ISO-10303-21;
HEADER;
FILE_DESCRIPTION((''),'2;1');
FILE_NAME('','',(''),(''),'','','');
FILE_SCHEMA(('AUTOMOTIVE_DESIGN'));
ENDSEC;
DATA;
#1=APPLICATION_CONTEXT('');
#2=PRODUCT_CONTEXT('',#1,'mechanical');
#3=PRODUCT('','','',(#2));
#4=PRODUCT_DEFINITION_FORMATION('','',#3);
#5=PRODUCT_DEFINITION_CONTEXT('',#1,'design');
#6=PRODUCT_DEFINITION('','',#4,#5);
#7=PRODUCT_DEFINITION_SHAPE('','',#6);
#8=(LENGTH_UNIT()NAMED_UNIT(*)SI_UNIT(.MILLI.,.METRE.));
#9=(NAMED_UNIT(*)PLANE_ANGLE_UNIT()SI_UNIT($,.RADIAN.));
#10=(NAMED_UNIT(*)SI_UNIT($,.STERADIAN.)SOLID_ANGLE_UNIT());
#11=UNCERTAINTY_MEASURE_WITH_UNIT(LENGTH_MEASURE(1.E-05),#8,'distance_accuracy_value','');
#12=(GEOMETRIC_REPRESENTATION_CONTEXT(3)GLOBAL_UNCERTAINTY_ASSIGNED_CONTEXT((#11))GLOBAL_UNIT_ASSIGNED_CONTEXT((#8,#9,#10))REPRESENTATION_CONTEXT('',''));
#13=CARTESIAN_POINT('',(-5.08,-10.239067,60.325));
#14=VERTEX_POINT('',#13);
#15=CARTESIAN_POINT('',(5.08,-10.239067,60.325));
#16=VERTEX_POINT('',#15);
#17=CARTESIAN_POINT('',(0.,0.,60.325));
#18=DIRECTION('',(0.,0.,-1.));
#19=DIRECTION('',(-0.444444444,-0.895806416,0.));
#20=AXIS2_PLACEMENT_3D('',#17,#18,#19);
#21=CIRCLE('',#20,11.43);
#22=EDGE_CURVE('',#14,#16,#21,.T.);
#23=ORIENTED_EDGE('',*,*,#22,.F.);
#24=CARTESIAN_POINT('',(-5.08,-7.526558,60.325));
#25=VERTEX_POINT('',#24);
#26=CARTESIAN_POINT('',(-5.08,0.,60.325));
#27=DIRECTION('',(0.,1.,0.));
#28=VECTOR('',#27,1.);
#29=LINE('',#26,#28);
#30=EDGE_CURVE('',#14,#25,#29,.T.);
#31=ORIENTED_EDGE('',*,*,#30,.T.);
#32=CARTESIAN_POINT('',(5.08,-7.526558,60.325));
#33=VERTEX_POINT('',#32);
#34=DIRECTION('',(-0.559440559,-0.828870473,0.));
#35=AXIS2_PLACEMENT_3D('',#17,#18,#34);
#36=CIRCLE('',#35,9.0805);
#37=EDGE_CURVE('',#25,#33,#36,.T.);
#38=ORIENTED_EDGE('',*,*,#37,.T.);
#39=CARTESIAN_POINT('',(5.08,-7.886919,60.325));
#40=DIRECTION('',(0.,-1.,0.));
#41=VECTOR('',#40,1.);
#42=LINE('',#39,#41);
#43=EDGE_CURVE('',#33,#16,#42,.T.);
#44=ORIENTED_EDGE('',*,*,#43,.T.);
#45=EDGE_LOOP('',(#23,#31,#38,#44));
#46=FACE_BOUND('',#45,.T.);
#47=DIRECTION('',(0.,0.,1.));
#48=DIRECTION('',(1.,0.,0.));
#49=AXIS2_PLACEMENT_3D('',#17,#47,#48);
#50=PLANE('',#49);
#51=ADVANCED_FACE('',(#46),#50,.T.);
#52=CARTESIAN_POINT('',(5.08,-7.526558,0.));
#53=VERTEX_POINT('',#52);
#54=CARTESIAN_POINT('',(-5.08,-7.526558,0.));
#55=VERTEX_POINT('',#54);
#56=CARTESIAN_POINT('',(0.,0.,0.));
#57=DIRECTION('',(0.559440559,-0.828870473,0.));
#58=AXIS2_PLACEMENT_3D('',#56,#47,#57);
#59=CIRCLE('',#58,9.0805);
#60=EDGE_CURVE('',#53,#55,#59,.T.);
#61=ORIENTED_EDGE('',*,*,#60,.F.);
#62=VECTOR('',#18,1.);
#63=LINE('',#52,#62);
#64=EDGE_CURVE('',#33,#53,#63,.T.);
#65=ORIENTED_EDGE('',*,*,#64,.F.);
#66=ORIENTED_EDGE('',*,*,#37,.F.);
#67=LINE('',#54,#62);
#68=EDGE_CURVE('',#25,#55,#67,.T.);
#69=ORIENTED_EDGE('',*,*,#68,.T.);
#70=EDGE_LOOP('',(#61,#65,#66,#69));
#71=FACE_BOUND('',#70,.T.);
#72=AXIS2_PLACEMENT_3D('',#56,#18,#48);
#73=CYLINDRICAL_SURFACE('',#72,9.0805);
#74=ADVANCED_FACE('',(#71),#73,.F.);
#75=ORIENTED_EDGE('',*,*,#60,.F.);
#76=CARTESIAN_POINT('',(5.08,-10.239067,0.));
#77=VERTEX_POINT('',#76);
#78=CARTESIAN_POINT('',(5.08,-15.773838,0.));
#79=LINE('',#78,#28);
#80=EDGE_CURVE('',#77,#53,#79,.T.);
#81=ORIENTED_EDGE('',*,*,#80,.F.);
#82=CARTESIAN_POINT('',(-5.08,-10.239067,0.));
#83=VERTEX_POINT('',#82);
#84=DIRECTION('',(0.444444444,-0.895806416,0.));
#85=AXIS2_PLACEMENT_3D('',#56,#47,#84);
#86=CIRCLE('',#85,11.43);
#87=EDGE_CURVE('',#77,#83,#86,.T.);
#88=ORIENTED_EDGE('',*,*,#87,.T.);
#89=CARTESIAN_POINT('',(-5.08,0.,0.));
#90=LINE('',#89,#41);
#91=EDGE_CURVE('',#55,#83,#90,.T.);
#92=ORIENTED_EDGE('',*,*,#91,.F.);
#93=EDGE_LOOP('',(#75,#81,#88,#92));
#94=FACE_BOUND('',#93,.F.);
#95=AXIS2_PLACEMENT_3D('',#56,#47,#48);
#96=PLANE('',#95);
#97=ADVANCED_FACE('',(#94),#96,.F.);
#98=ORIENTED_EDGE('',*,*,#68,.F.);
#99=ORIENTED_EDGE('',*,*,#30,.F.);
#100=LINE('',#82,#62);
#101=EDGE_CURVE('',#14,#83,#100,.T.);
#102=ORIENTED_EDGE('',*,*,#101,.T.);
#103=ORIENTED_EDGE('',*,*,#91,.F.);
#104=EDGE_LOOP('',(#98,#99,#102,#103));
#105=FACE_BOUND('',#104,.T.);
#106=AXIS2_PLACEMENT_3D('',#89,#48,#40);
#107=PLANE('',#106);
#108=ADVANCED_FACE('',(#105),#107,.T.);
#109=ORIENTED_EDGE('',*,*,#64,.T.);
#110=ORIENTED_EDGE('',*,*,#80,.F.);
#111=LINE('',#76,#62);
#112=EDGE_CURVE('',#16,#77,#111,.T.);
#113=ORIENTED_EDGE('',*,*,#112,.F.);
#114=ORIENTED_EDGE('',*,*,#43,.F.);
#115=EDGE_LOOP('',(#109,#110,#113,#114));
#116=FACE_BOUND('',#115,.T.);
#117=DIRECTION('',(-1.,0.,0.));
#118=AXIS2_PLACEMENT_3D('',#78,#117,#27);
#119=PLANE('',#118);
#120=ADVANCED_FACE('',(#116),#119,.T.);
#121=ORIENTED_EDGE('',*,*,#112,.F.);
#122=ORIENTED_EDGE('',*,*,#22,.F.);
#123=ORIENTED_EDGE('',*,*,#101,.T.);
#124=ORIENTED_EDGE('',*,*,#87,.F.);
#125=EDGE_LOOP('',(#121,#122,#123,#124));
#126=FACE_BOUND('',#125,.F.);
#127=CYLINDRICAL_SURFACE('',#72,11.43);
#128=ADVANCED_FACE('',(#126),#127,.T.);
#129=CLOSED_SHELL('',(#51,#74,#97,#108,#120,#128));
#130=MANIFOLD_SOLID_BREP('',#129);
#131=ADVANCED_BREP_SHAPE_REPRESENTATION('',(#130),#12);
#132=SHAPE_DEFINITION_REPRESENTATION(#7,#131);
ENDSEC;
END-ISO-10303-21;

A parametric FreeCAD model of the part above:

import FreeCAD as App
import Part
import Sketcher
from FreeCAD import Vector
Q = App.Units.Quantity


def add_polygon(sketch, points):
    """Adds a closed chain of lines whose ends are joined by coincident constraints."""
    first, n = sketch.GeometryCount, len(points)
    for a, b in zip(points, points[1:] + points[:1]):
        sketch.addGeometry(Part.LineSegment(App.Vector(*a, 0), App.Vector(*b, 0)), False)
    for i in range(n):
        sketch.addConstraint(Sketcher.Constraint("Coincident", first + i, 2, first + (i + 1) % n, 1))

doc = App.newDocument("Part")
body = doc.addObject("PartDesign::Body", "Body")

sketch1 = doc.addObject("Sketcher::SketchObject", "Sketch")
body.addObject(sketch1)
sketch1.AttachmentSupport = (doc.XY_Plane, [""])
sketch1.MapMode = "FlatFace"
sketch1.addGeometry(Part.Circle(Vector(0, 0, 0), Vector(0, 0, 1), 11.43), False)
sketch1.addGeometry(Part.Circle(Vector(0, 0, 0), Vector(0, 0, 1), 9.0805), False)
sketch1.addConstraint(Sketcher.Constraint("Coincident", 0, 3, -1, 1))
sketch1.addConstraint(Sketcher.Constraint("Coincident", 1, 3, -1, 1))
sketch1.addConstraint(Sketcher.Constraint("Diameter", 0, Q("0.9 in")))
sketch1.addConstraint(Sketcher.Constraint("Diameter", 1, Q("0.715 in")))
pad1 = doc.addObject("PartDesign::Pad", "Pad")
body.addObject(pad1)
pad1.Profile = sketch1
pad1.Length = Q("2.375 in")

sketch2 = doc.addObject("Sketcher::SketchObject", "Sketch001")
body.addObject(sketch2)
sketch2.AttachmentSupport = (doc.XY_Plane, [""])
sketch2.MapMode = "FlatFace"
add_polygon(sketch2, [(5.08, 0), (-5.08, 0), (-5.08, -15.773838), (5.08, -15.773838)])
sketch2.addConstraint(Sketcher.Constraint("Horizontal", 0))
sketch2.addConstraint(Sketcher.Constraint("Vertical", 1))
sketch2.addConstraint(Sketcher.Constraint("Horizontal", 2))
sketch2.addConstraint(Sketcher.Constraint("Vertical", 3))
sketch2.addConstraint(Sketcher.Constraint("Symmetric", 0, 2, 3, 2, -1, 1))
sketch2.addConstraint(Sketcher.Constraint("DistanceX", 0, 2, 0, 1, Q("0.4 in")))
sketch2.addConstraint(Sketcher.Constraint("DistanceY", 1, 2, 1, 1, 15.773838))
pocket1 = doc.addObject("PartDesign::Pocket", "Pocket")
body.addObject(pocket1)
pocket1.Profile = sketch2
pocket1.Length = Q("5 in")
pocket1.Reversed = True

doc.recompute()
